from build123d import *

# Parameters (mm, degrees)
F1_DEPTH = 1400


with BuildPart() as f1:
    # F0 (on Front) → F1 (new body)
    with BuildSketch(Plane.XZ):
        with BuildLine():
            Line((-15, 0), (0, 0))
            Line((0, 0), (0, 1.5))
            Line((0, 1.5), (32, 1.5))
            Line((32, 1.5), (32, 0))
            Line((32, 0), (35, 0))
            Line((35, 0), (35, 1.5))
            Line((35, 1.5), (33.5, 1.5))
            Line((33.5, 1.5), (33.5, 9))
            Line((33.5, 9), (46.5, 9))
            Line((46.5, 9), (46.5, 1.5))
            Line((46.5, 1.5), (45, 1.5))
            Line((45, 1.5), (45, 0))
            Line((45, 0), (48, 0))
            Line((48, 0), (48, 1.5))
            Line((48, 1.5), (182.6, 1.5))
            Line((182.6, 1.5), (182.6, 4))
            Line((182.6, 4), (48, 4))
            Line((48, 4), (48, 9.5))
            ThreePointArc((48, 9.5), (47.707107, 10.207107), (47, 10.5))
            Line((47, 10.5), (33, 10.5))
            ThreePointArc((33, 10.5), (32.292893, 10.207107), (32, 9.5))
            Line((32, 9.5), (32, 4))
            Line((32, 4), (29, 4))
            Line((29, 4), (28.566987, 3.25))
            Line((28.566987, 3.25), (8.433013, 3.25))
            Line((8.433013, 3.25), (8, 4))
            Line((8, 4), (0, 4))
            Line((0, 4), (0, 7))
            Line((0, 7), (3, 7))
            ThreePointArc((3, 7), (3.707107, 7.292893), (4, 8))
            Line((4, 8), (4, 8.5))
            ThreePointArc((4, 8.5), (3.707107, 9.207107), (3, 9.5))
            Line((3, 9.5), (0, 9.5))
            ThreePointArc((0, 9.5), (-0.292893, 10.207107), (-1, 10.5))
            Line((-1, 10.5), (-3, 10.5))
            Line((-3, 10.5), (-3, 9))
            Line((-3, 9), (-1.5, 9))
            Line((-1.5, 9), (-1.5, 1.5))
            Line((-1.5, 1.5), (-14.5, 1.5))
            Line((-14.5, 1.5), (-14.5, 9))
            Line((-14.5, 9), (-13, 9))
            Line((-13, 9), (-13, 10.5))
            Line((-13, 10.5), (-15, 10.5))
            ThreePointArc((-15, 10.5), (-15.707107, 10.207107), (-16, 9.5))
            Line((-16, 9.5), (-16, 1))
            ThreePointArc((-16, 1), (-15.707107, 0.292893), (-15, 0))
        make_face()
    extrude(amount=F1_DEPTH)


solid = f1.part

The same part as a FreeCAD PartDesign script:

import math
import FreeCAD as App
import Part
import Sketcher
Q = App.Units.Quantity

doc = App.newDocument("Part")
body = doc.addObject("PartDesign::Body", "Body")

# Sketch on XZ plane
sketch1 = body.newObject("Sketcher::SketchObject", "Sketch")
sketch1.AttachmentSupport = (doc.getObject("XZ_Plane"), [""])
sketch1.MapMode = "FlatFace"
sketch1.addGeometry([
    Part.LineSegment(App.Vector(-15, 0, 0), App.Vector(0, 0, 0)),  # 0
    Part.LineSegment(App.Vector(0, 0, 0), App.Vector(0, 1.5, 0)),  # 1
    Part.LineSegment(App.Vector(0, 1.5, 0), App.Vector(32, 1.5, 0)),  # 2
    Part.LineSegment(App.Vector(32, 1.5, 0), App.Vector(32, 0, 0)),  # 3
    Part.LineSegment(App.Vector(32, 0, 0), App.Vector(35, 0, 0)),  # 4
    Part.LineSegment(App.Vector(35, 0, 0), App.Vector(35, 1.5, 0)),  # 5
    Part.LineSegment(App.Vector(35, 1.5, 0), App.Vector(33.5, 1.5, 0)),  # 6
    Part.LineSegment(App.Vector(33.5, 1.5, 0), App.Vector(33.5, 9, 0)),  # 7
    Part.LineSegment(App.Vector(33.5, 9, 0), App.Vector(46.5, 9, 0)),  # 8
    Part.LineSegment(App.Vector(46.5, 9, 0), App.Vector(46.5, 1.5, 0)),  # 9
    Part.LineSegment(App.Vector(46.5, 1.5, 0), App.Vector(45, 1.5, 0)),  # 10
    Part.LineSegment(App.Vector(45, 1.5, 0), App.Vector(45, 0, 0)),  # 11
    Part.LineSegment(App.Vector(45, 0, 0), App.Vector(48, 0, 0)),  # 12
    Part.LineSegment(App.Vector(48, 0, 0), App.Vector(48, 1.5, 0)),  # 13
    Part.LineSegment(App.Vector(48, 1.5, 0), App.Vector(182.6, 1.5, 0)),  # 14
    Part.LineSegment(App.Vector(182.6, 1.5, 0), App.Vector(182.6, 4, 0)),  # 15
    Part.LineSegment(App.Vector(182.6, 4, 0), App.Vector(48, 4, 0)),  # 16
    Part.LineSegment(App.Vector(48, 4, 0), App.Vector(48, 9.5, 0)),  # 17
    Part.ArcOfCircle(Part.Circle(App.Vector(47, 9.5, 0), App.Vector(0, 0, 1), 1), math.radians(0), math.radians(90)),  # 18
    Part.LineSegment(App.Vector(47, 10.5, 0), App.Vector(33, 10.5, 0)),  # 19
    Part.ArcOfCircle(Part.Circle(App.Vector(33, 9.5, 0), App.Vector(0, 0, 1), 1), math.radians(90), math.radians(180)),  # 20
    Part.LineSegment(App.Vector(32, 9.5, 0), App.Vector(32, 4, 0)),  # 21
    Part.LineSegment(App.Vector(32, 4, 0), App.Vector(29, 4, 0)),  # 22
    Part.LineSegment(App.Vector(29, 4, 0), App.Vector(28.6, 3.2, 0)),  # 23
    Part.LineSegment(App.Vector(28.6, 3.2, 0), App.Vector(8.4, 3.2, 0)),  # 24
    Part.LineSegment(App.Vector(8.4, 3.2, 0), App.Vector(8, 4, 0)),  # 25
    Part.LineSegment(App.Vector(8, 4, 0), App.Vector(0, 4, 0)),  # 26
    Part.LineSegment(App.Vector(0, 4, 0), App.Vector(0, 7, 0)),  # 27
    Part.LineSegment(App.Vector(0, 7, 0), App.Vector(3, 7, 0)),  # 28
    Part.ArcOfCircle(Part.Circle(App.Vector(3, 8, 0), App.Vector(0, 0, 1), 1), math.radians(-90), math.radians(0)),  # 29
    Part.LineSegment(App.Vector(4, 8, 0), App.Vector(4, 8.5, 0)),  # 30
    Part.ArcOfCircle(Part.Circle(App.Vector(3, 8.5, 0), App.Vector(0, 0, 1), 1), math.radians(0), math.radians(90)),  # 31
    Part.LineSegment(App.Vector(3, 9.5, 0), App.Vector(0, 9.5, 0)),  # 32
    Part.ArcOfCircle(Part.Circle(App.Vector(-1, 9.5, 0), App.Vector(0, 0, 1), 1), math.radians(0), math.radians(90)),  # 33
    Part.LineSegment(App.Vector(-1, 10.5, 0), App.Vector(-3, 10.5, 0)),  # 34
    Part.LineSegment(App.Vector(-3, 10.5, 0), App.Vector(-3, 9, 0)),  # 35
    Part.LineSegment(App.Vector(-3, 9, 0), App.Vector(-1.5, 9, 0)),  # 36
    Part.LineSegment(App.Vector(-1.5, 9, 0), App.Vector(-1.5, 1.5, 0)),  # 37
    Part.LineSegment(App.Vector(-1.5, 1.5, 0), App.Vector(-14.5, 1.5, 0)),  # 38
    Part.LineSegment(App.Vector(-14.5, 1.5, 0), App.Vector(-14.5, 9, 0)),  # 39
    Part.LineSegment(App.Vector(-14.5, 9, 0), App.Vector(-13, 9, 0)),  # 40
    Part.LineSegment(App.Vector(-13, 9, 0), App.Vector(-13, 10.5, 0)),  # 41
    Part.LineSegment(App.Vector(-13, 10.5, 0), App.Vector(-15, 10.5, 0)),  # 42
    Part.ArcOfCircle(Part.Circle(App.Vector(-15, 9.5, 0), App.Vector(0, 0, 1), 1), math.radians(90), math.radians(180)),  # 43
    Part.LineSegment(App.Vector(-16, 9.5, 0), App.Vector(-16, 1, 0)),  # 44
    Part.ArcOfCircle(Part.Circle(App.Vector(-15, 1, 0), App.Vector(0, 0, 1), 1), math.radians(180), math.radians(270)),  # 45
], False)
sketch1.addConstraint([
    Sketcher.Constraint("Coincident", 0, 2, 1, 1),
    Sketcher.Constraint("Coincident", 1, 2, 2, 1),
    Sketcher.Constraint("Coincident", 2, 2, 3, 1),
    Sketcher.Constraint("Coincident", 3, 2, 4, 1),
    Sketcher.Constraint("Coincident", 4, 2, 5, 1),
    Sketcher.Constraint("Coincident", 5, 2, 6, 1),
    Sketcher.Constraint("Coincident", 6, 2, 7, 1),
    Sketcher.Constraint("Coincident", 7, 2, 8, 1),
    Sketcher.Constraint("Coincident", 8, 2, 9, 1),
    Sketcher.Constraint("Coincident", 9, 2, 10, 1),
    Sketcher.Constraint("Coincident", 10, 2, 11, 1),
    Sketcher.Constraint("Coincident", 11, 2, 12, 1),
    Sketcher.Constraint("Coincident", 12, 2, 13, 1),
    Sketcher.Constraint("Coincident", 13, 2, 14, 1),
    Sketcher.Constraint("Coincident", 14, 2, 15, 1),
    Sketcher.Constraint("Coincident", 15, 2, 16, 1),
    Sketcher.Constraint("Coincident", 16, 2, 17, 1),
    Sketcher.Constraint("Tangent", 17, 2, 18, 1),
    Sketcher.Constraint("Tangent", 18, 2, 19, 1),
    Sketcher.Constraint("Tangent", 19, 2, 20, 1),
    Sketcher.Constraint("Tangent", 20, 2, 21, 1),
    Sketcher.Constraint("Coincident", 21, 2, 22, 1),
    Sketcher.Constraint("Coincident", 22, 2, 23, 1),
    Sketcher.Constraint("Coincident", 23, 2, 24, 1),
    Sketcher.Constraint("Coincident", 24, 2, 25, 1),
    Sketcher.Constraint("Coincident", 25, 2, 26, 1),
    Sketcher.Constraint("Coincident", 26, 2, 27, 1),
    Sketcher.Constraint("Coincident", 27, 2, 28, 1),
    Sketcher.Constraint("Tangent", 28, 2, 29, 1),
    Sketcher.Constraint("Tangent", 29, 2, 30, 1),
    Sketcher.Constraint("Tangent", 30, 2, 31, 1),
    Sketcher.Constraint("Tangent", 31, 2, 32, 1),
    Sketcher.Constraint("Coincident", 32, 2, 33, 1),
    Sketcher.Constraint("Tangent", 33, 2, 34, 1),
    Sketcher.Constraint("Coincident", 34, 2, 35, 1),
    Sketcher.Constraint("Coincident", 35, 2, 36, 1),
    Sketcher.Constraint("Coincident", 36, 2, 37, 1),
    Sketcher.Constraint("Coincident", 37, 2, 38, 1),
    Sketcher.Constraint("Coincident", 38, 2, 39, 1),
    Sketcher.Constraint("Coincident", 39, 2, 40, 1),
    Sketcher.Constraint("Coincident", 40, 2, 41, 1),
    Sketcher.Constraint("Coincident", 41, 2, 42, 1),
    Sketcher.Constraint("Tangent", 42, 2, 43, 1),
    Sketcher.Constraint("Tangent", 43, 2, 44, 1),
    Sketcher.Constraint("Tangent", 44, 2, 45, 1),
    Sketcher.Constraint("Tangent", 45, 2, 0, 1),
    Sketcher.Constraint("Horizontal", 0),
    Sketcher.Constraint("Vertical", 1),
    Sketcher.Constraint("Horizontal", 2),
    Sketcher.Constraint("Vertical", 3),
    Sketcher.Constraint("Horizontal", 4),
    Sketcher.Constraint("Vertical", 5),
    Sketcher.Constraint("Horizontal", 6),
    Sketcher.Constraint("Vertical", 7),
    Sketcher.Constraint("Horizontal", 8),
    Sketcher.Constraint("Vertical", 9),
    Sketcher.Constraint("Horizontal", 10),
    Sketcher.Constraint("Vertical", 11),
    Sketcher.Constraint("Horizontal", 12),
    Sketcher.Constraint("Vertical", 13),
    Sketcher.Constraint("Horizontal", 14),
    Sketcher.Constraint("Vertical", 15),
    Sketcher.Constraint("Horizontal", 16),
    Sketcher.Constraint("Vertical", 17),
    Sketcher.Constraint("Horizontal", 19),
    Sketcher.Constraint("Vertical", 21),
    Sketcher.Constraint("Horizontal", 22),
    Sketcher.Constraint("Horizontal", 24),
    Sketcher.Constraint("Horizontal", 26),
    Sketcher.Constraint("Vertical", 27),
    Sketcher.Constraint("Horizontal", 28),
    Sketcher.Constraint("Vertical", 30),
    Sketcher.Constraint("Horizontal", 32),
    Sketcher.Constraint("Horizontal", 34),
    Sketcher.Constraint("Vertical", 35),
    Sketcher.Constraint("Horizontal", 36),
    Sketcher.Constraint("Vertical", 37),
    Sketcher.Constraint("Horizontal", 38),
    Sketcher.Constraint("Vertical", 39),
    Sketcher.Constraint("Horizontal", 40),
    Sketcher.Constraint("Vertical", 41),
    Sketcher.Constraint("Horizontal", 42),
    Sketcher.Constraint("Vertical", 44),
    Sketcher.Constraint("Coincident", 0, 2, -1, 1),
    Sketcher.Constraint("Equal", 18, 20),
    Sketcher.Constraint("Equal", 20, 29),
    Sketcher.Constraint("Equal", 29, 31),
    Sketcher.Constraint("Equal", 31, 33),
    Sketcher.Constraint("Equal", 33, 43),
    Sketcher.Constraint("Equal", 43, 45),
    Sketcher.Constraint("PointOnObject", 3, 2, -1),
    Sketcher.Constraint("PointOnObject", 11, 2, -1),
    Sketcher.Constraint("PointOnObject", 26, 2, -2),
    Sketcher.Constraint("PointOnObject", 32, 2, -2),
    Sketcher.Constraint("Horizontal", 20, 3, 33, 3),
    Sketcher.Constraint("Horizontal", 33, 3, 43, 3),
    Sketcher.Constraint("Horizontal", 2, 2, 5, 2),
    Sketcher.Constraint("Horizontal", 6, 2, 9, 2),
    Sketcher.Constraint("Horizontal", 10, 2, 13, 2),
    Sketcher.Constraint("Horizontal", 16, 2, 21, 2),
    Sketcher.Constraint("Horizontal", 22, 2, 25, 2),
    Sketcher.Constraint("Horizontal", 20, 2, 31, 2),
    Sketcher.Constraint("Horizontal", 8, 2, 35, 2),
    Sketcher.Constraint("Horizontal", 14, 2, 37, 2),
    Sketcher.Constraint("Horizontal", 36, 2, 39, 2),
    Sketcher.Constraint("Vertical", 13, 2, 16, 2),
    Sketcher.Constraint("Vertical", 3, 2, 20, 2),
    Sketcher.Constraint("Equal", 6, 10),
    Sketcher.Constraint("Equal", 4, 12),
    Sketcher.Constraint("Equal", 12, 22),
    Sketcher.Constraint("Equal", 22, 28),
    Sketcher.Constraint("Equal", 10, 36),
    Sketcher.Constraint("Equal", 8, 38),
    Sketcher.Constraint("Equal", 36, 40),
    Sketcher.Constraint("Equal", 34, 42),
    Sketcher.Constraint("Equal", 40, 1),
    Sketcher.Constraint("Equal", 32, 27),
    Sketcher.Constraint("Equal", 13, 35),
    Sketcher.Constraint("Equal", 23, 25),
    Sketcher.Constraint("Radius", 18, 0.999999),
    Sketcher.Constraint("DistanceX", 0, 1, 0, 2, 15.0),
    Sketcher.Constraint("DistanceX", 2, 1, 2, 2, 32.0),
    Sketcher.Constraint("DistanceX", 4, 1, 4, 2, 3.0),
    Sketcher.Constraint("DistanceX", 8, 1, 8, 2, 13.0),
    Sketcher.Constraint("DistanceX", 19, 2, 19, 1, 14.0),
    Sketcher.Constraint("DistanceX", 26, 2, 26, 1, 8.0),
    Sketcher.Constraint("Angle", 23, Q("-120.000017 deg")),
    Sketcher.Constraint("DistanceX", 14, 1, 14, 2, 134.6),
    Sketcher.Constraint("DistanceY", 7, 1, 7, 2, 7.5),
    Sketcher.Constraint("DistanceY", 15, 1, 15, 2, 2.5),
    Sketcher.Constraint("DistanceY", -1, 1, 23, 2, 3.25),
])
pad1 = body.newObject("PartDesign::Pad", "Pad")
pad1.Profile = sketch1
pad1.Length = 1400

doc.recompute()
